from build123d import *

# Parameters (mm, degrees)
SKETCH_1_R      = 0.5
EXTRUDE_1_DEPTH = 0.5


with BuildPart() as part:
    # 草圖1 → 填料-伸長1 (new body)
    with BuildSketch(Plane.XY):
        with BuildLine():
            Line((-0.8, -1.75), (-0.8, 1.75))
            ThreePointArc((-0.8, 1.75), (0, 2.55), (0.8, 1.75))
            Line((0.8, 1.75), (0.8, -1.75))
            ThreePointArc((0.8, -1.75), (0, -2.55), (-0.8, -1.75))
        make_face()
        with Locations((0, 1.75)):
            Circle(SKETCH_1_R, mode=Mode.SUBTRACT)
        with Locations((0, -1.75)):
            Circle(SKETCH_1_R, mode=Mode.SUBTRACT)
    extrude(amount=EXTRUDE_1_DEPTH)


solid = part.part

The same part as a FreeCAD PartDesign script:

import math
import FreeCAD as App
import Part
import Sketcher
from FreeCAD import Vector
Q = App.Units.Quantity

doc = App.newDocument("Part")
body = doc.addObject("PartDesign::Body", "Body")

# Sketch on XY plane
sketch1 = body.newObject("Sketcher::SketchObject", "Sketch")
sketch1.AttachmentSupport = (doc.getObject("XY_Plane"), [""])
sketch1.MapMode = "FlatFace"
sketch1.addGeometry([
    Part.LineSegment(Vector(-0.8, 1.75, 0), Vector(-0.8, -1.75, 0)),  # 0
    Part.ArcOfCircle(Part.Circle(Vector(0, -1.75, 0), Vector(0, 0, 1), 0.8), math.radians(180), math.radians(360)),  # 1
    Part.LineSegment(Vector(0.8, -1.75, 0), Vector(0.8, 1.75, 0)),  # 2
    Part.ArcOfCircle(Part.Circle(Vector(0, 1.75, 0), Vector(0, 0, 1), 0.8), math.radians(0), math.radians(180)),  # 3
    Part.Circle(Vector(0, -1.75, 0), Vector(0, 0, 1), 0.5),  # 4
    Part.Circle(Vector(0, 1.75, 0), Vector(0, 0, 1), 0.5),  # 5
], False)
sketch1.addConstraint([
    Sketcher.Constraint("Tangent", 0, 2, 1, 1),
    Sketcher.Constraint("Tangent", 1, 2, 2, 1),
    Sketcher.Constraint("Tangent", 2, 2, 3, 1),
    Sketcher.Constraint("Tangent", 3, 2, 0, 1),
    Sketcher.Constraint("Vertical", 0),
    Sketcher.Constraint("Vertical", 2),
    Sketcher.Constraint("Coincident", 4, 3, 1, 3),
    Sketcher.Constraint("Coincident", 5, 3, 3, 3),
    Sketcher.Constraint("Equal", 4, 5),
    Sketcher.Constraint("Symmetric", 1, 3, 3, 3, -1, 1),
    Sketcher.Constraint("Diameter", 4, Q("1 mm")),
    Sketcher.Constraint("Radius", 1, Q("0.8 mm")),
    Sketcher.Constraint("DistanceY", 0, 2, 0, 1, Q("3.5 mm")),
])
pad1 = body.newObject("PartDesign::Pad", "Pad")
pad1.Profile = sketch1
pad1.Length = 0.5

doc.recompute()
